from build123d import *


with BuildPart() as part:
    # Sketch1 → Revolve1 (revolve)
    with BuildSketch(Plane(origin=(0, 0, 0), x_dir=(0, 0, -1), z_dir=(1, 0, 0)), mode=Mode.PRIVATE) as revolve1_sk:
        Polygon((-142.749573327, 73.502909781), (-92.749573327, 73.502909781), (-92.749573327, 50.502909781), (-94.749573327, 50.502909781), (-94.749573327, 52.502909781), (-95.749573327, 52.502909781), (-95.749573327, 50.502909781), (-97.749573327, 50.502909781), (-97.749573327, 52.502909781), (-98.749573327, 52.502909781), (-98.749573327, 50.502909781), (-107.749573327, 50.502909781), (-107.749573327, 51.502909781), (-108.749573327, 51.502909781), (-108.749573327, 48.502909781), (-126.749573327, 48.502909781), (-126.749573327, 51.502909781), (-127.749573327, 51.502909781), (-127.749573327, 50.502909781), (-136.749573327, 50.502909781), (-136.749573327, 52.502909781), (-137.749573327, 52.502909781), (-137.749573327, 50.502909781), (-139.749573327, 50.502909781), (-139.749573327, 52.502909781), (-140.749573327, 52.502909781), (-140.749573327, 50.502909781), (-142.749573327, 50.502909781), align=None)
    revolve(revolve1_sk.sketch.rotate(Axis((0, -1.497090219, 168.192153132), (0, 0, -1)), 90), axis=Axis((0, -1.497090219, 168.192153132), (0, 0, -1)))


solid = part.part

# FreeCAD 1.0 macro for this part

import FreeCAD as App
import Part
import Sketcher

V = App.Vector
Q = App.Units.Quantity


def add_polygon(sketch, points):
    """Adds a closed chain of lines whose ends are joined by coincident constraints."""
    first, n = sketch.GeometryCount, len(points)
    for a, b in zip(points, points[1:] + points[:1]):
        sketch.addGeometry(Part.LineSegment(App.Vector(*a, 0), App.Vector(*b, 0)), False)
    for i in range(n):
        sketch.addConstraint(Sketcher.Constraint("Coincident", first + i, 2, first + (i + 1) % n, 1))

doc = App.newDocument("Part")
body = doc.addObject("PartDesign::Body", "Body")

# Sketch on YZ plane
sketch1 = body.newObject("Sketcher::SketchObject", "Sketch")
sketch1.AttachmentSupport = (doc.getObject("YZ_Plane"), [""])
sketch1.MapMode = "FlatFace"
add_polygon(sketch1, [(73.50291, 92.749573), (73.50291, 142.749573), (50.50291, 142.749573), (50.50291, 140.749573), (52.50291, 140.749573), (52.50291, 139.749573), (50.50291, 139.749573), (50.50291, 137.749573), (52.50291, 137.749573), (52.50291, 136.749573), (50.50291, 136.749573), (50.50291, 127.749573), (51.50291, 127.749573), (51.50291, 126.749573), (48.50291, 126.749573), (48.50291, 108.749573), (51.50291, 108.749573), (51.50291, 107.749573), (50.50291, 107.749573), (50.50291, 98.749573), (52.50291, 98.749573), (52.50291, 97.749573), (50.50291, 97.749573), (50.50291, 95.749573), (52.50291, 95.749573), (52.50291, 94.749573), (50.50291, 94.749573), (50.50291, 92.749573)])  # lines 0-27
sketch1.addGeometry(Part.LineSegment(V(-1.49709, 142.749573, 0), V(-1.49709, 92.749573, 0)), True)  # axis
sketch1.addConstraint([
    Sketcher.Constraint("Vertical", 0),
    Sketcher.Constraint("Horizontal", 1),
    Sketcher.Constraint("Vertical", 2),
    Sketcher.Constraint("Horizontal", 3),
    Sketcher.Constraint("Vertical", 4),
    Sketcher.Constraint("Horizontal", 5),
    Sketcher.Constraint("Vertical", 6),
    Sketcher.Constraint("Horizontal", 7),
    Sketcher.Constraint("Vertical", 8),
    Sketcher.Constraint("Horizontal", 9),
    Sketcher.Constraint("Vertical", 10),
    Sketcher.Constraint("Horizontal", 11),
    Sketcher.Constraint("Vertical", 12),
    Sketcher.Constraint("Horizontal", 13),
    Sketcher.Constraint("Vertical", 14),
    Sketcher.Constraint("Horizontal", 15),
    Sketcher.Constraint("Vertical", 16),
    Sketcher.Constraint("Horizontal", 17),
    Sketcher.Constraint("Vertical", 18),
    Sketcher.Constraint("Horizontal", 19),
    Sketcher.Constraint("Vertical", 20),
    Sketcher.Constraint("Horizontal", 21),
    Sketcher.Constraint("Vertical", 22),
    Sketcher.Constraint("Horizontal", 23),
    Sketcher.Constraint("Vertical", 24),
    Sketcher.Constraint("Horizontal", 25),
    Sketcher.Constraint("Vertical", 26),
    Sketcher.Constraint("Horizontal", 27),
    Sketcher.Constraint("Vertical", 28),
    Sketcher.Constraint("Horizontal", 1, 2, 28, 1),
    Sketcher.Constraint("Horizontal", 27, 2, 28, 2),
    Sketcher.Constraint("Vertical", 2, 2, 5, 2),
    Sketcher.Constraint("Vertical", 4, 2, 7, 2),
    Sketcher.Constraint("Vertical", 6, 2, 9, 2),
    Sketcher.Constraint("Vertical", 12, 2, 15, 2),
    Sketcher.Constraint("Vertical", 10, 2, 17, 2),
    Sketcher.Constraint("Vertical", 8, 2, 19, 2),
    Sketcher.Constraint("Vertical", 18, 2, 21, 2),
    Sketcher.Constraint("Vertical", 20, 2, 23, 2),
    Sketcher.Constraint("Vertical", 22, 2, 25, 2),
    Sketcher.Constraint("Equal", 25, 2),
    Sketcher.Constraint("Equal", 17, 4),
    Sketcher.Constraint("Equal", 2, 6),
    Sketcher.Constraint("Equal", 4, 8),
    Sketcher.Constraint("Equal", 8, 12),
    Sketcher.Constraint("Equal", 12, 16),
    Sketcher.Constraint("Equal", 10, 18),
    Sketcher.Constraint("Equal", 16, 20),
    Sketcher.Constraint("Equal", 6, 22),
    Sketcher.Constraint("Equal", 20, 24),
    Sketcher.Constraint("Equal", 22, 26),
    Sketcher.Constraint("DistanceX", 1, 2, 1, 1, Q("23 mm")),
    Sketcher.Constraint("DistanceX", 3, 1, 3, 2, Q("2 mm")),
    Sketcher.Constraint("DistanceX", 11, 1, 11, 2, Q("1 mm")),
    Sketcher.Constraint("DistanceX", 13, 2, 13, 1, Q("3 mm")),
    Sketcher.Constraint("DistanceY", 0, 1, 0, 2, Q("50 mm")),
    Sketcher.Constraint("DistanceY", 10, 2, 10, 1, Q("9 mm")),
    Sketcher.Constraint("DistanceX", 28, 1, 1, 2, Q("52 mm")),
    Sketcher.Constraint("DistanceX", -1, 1, 0, 2, Q("73.50291 mm")),
    Sketcher.Constraint("DistanceY", -1, 1, 0, 2, Q("142.749573 mm")),
])
revolution = body.newObject("PartDesign::Revolution", "Revolution")
revolution.Profile = sketch1
revolution.ReferenceAxis = (sketch1, ["Axis0"])
revolution.Angle = 360

doc.recompute()
